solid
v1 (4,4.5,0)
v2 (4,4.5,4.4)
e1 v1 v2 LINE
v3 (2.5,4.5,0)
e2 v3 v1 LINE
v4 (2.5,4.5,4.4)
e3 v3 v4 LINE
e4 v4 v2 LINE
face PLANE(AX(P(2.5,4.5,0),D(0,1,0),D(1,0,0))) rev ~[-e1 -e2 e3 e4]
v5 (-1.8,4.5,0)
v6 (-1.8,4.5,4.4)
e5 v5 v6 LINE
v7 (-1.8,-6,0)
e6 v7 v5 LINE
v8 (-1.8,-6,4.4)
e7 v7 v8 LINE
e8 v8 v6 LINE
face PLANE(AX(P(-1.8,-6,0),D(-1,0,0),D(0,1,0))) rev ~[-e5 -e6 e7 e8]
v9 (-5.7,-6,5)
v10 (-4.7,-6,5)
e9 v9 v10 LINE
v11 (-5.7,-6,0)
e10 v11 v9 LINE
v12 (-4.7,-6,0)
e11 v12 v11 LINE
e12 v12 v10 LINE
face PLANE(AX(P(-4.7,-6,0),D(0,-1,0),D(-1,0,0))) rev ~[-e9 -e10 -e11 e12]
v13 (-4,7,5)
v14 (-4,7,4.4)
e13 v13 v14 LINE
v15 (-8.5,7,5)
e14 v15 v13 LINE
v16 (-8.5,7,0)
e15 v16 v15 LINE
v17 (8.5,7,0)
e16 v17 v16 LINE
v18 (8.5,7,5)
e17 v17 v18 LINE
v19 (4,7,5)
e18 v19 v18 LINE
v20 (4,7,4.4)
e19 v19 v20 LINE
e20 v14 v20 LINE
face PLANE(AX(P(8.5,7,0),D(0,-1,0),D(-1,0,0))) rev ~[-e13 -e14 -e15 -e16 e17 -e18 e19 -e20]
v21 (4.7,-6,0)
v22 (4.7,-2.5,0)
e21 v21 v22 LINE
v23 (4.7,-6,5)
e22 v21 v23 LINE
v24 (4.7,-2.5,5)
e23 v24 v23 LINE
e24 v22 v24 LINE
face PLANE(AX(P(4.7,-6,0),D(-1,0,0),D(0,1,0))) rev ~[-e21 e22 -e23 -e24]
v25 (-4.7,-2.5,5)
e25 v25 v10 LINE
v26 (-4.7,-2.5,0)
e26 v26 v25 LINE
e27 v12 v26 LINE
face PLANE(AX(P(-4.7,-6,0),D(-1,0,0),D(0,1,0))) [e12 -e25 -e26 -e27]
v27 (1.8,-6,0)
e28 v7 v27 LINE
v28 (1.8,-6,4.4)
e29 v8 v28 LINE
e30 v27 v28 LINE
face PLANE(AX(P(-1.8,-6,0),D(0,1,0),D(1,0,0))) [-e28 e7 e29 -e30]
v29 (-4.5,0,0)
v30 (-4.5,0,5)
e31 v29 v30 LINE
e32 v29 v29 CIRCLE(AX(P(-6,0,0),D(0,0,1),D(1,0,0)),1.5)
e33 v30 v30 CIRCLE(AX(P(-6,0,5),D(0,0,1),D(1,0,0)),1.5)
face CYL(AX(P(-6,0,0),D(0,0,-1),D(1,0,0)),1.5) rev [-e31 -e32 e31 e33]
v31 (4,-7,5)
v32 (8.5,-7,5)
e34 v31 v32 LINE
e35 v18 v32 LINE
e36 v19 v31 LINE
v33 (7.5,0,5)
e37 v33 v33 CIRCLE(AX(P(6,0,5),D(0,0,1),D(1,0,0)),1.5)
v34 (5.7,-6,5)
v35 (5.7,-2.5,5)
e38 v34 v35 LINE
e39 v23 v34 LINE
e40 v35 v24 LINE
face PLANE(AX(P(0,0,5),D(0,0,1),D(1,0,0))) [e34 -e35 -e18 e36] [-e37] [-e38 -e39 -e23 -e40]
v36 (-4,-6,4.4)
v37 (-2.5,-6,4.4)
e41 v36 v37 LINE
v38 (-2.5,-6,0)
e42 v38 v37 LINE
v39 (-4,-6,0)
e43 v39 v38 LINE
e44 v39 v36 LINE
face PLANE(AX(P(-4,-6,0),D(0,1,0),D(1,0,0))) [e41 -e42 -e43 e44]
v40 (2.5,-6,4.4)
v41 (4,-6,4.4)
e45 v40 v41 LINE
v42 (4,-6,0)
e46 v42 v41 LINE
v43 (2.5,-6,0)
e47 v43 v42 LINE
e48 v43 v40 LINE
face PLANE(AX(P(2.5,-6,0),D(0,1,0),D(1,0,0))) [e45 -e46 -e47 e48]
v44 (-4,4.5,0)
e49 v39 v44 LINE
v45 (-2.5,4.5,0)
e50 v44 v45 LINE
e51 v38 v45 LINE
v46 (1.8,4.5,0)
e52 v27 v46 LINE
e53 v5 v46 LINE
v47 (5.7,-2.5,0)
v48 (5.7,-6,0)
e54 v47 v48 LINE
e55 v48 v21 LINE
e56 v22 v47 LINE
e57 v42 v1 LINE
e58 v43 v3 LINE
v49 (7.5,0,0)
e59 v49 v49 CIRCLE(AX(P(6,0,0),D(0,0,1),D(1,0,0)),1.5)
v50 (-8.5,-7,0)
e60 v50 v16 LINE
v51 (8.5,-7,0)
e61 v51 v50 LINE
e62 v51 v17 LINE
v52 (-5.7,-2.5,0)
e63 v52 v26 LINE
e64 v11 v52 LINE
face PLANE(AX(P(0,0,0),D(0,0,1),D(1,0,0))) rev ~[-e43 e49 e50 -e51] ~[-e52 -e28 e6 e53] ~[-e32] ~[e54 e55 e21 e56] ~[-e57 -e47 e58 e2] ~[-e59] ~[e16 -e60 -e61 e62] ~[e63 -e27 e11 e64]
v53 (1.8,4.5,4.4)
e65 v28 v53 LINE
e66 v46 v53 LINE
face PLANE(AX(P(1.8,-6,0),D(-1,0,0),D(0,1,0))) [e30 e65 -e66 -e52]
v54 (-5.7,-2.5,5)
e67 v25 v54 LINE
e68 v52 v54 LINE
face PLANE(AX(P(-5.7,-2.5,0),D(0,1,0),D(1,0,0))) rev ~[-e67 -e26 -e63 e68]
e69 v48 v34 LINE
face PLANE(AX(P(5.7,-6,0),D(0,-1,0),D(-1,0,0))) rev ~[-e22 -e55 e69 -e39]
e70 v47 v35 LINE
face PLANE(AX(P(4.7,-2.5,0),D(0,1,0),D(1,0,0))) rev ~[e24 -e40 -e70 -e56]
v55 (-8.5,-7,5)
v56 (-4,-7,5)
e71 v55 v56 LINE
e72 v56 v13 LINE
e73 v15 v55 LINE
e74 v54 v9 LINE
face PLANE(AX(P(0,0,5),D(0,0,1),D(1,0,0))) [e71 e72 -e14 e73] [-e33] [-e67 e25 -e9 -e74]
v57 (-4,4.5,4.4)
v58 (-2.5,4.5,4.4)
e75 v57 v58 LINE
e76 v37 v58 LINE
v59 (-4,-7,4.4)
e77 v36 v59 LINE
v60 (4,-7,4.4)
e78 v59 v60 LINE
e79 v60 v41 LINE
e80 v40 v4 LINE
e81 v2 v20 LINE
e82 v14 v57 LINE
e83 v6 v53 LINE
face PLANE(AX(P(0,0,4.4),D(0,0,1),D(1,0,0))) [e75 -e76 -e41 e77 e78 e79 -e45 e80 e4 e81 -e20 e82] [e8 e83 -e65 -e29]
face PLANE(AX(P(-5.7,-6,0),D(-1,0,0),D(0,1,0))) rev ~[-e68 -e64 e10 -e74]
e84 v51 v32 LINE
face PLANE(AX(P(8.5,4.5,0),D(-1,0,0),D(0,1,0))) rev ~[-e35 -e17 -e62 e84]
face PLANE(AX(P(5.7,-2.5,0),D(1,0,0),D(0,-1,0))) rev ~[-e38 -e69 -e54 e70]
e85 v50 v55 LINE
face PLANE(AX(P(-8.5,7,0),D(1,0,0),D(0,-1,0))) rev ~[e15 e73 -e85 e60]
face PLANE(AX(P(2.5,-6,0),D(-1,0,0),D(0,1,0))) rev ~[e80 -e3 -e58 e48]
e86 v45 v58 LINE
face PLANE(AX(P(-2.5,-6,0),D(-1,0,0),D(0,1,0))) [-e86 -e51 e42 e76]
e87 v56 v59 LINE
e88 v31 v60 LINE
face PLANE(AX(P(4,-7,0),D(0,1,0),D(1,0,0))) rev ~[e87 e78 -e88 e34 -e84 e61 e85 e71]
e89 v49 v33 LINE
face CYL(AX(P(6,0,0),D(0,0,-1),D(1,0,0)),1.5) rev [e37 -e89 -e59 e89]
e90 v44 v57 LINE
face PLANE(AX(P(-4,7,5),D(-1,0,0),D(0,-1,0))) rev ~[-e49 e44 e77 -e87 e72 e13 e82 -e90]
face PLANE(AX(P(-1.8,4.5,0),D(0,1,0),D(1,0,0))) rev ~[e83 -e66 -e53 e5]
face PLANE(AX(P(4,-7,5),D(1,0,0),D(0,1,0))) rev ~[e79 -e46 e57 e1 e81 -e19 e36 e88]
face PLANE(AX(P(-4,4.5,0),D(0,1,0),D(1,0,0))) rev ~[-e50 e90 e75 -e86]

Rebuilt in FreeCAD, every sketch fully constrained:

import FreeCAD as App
import Part
import Sketcher

V = App.Vector

doc = App.newDocument("Part")
body = doc.addObject("PartDesign::Body", "Body")

sketch1 = doc.addObject("Sketcher::SketchObject", "Sketch")
body.addObject(sketch1)
sketch1.AttachmentSupport = (doc.XY_Plane, [""])
sketch1.MapMode = "FlatFace"
sketch1.addGeometry([
    Part.LineSegment(V(8.5, 7, 0), V(-8.5, 7, 0)),
    Part.LineSegment(V(-8.5, 7, 0), V(-8.5, -7, 0)),
    Part.LineSegment(V(-8.5, -7, 0), V(8.5, -7, 0)),
    Part.LineSegment(V(8.5, -7, 0), V(8.5, 7, 0)),
    Part.LineSegment(V(4, 4.5, 0), V(4, -6, 0)),
    Part.LineSegment(V(4, -6, 0), V(2.5, -6, 0)),
    Part.LineSegment(V(2.5, -6, 0), V(2.5, 4.5, 0)),
    Part.LineSegment(V(2.5, 4.5, 0), V(4, 4.5, 0)),
    Part.Circle(V(6, 0, 0), V(0, 0, 1), 1.5),
    Part.LineSegment(V(-1.8, 4.5, 0), V(1.8, 4.5, 0)),
    Part.LineSegment(V(1.8, 4.5, 0), V(1.8, -6, 0)),
    Part.LineSegment(V(1.8, -6, 0), V(-1.8, -6, 0)),
    Part.LineSegment(V(-1.8, -6, 0), V(-1.8, 4.5, 0)),
    Part.LineSegment(V(-4, 4.5, 0), V(-2.5, 4.5, 0)),
    Part.LineSegment(V(-2.5, 4.5, 0), V(-2.5, -6, 0)),
    Part.LineSegment(V(-2.5, -6, 0), V(-4, -6, 0)),
    Part.LineSegment(V(-4, -6, 0), V(-4, 4.5, 0)),
    Part.Circle(V(-6, 0, 0), V(0, 0, 1), 1.5),
], False)
sketch1.addConstraint([
    Sketcher.Constraint("Coincident", 0, 2, 1, 1),
    Sketcher.Constraint("Coincident", 1, 2, 2, 1),
    Sketcher.Constraint("Coincident", 2, 2, 3, 1),
    Sketcher.Constraint("Coincident", 3, 2, 0, 1),
    Sketcher.Constraint("Coincident", 4, 2, 5, 1),
    Sketcher.Constraint("Coincident", 5, 2, 6, 1),
    Sketcher.Constraint("Coincident", 6, 2, 7, 1),
    Sketcher.Constraint("Coincident", 7, 2, 4, 1),
    Sketcher.Constraint("Coincident", 9, 2, 10, 1),
    Sketcher.Constraint("Coincident", 10, 2, 11, 1),
    Sketcher.Constraint("Coincident", 11, 2, 12, 1),
    Sketcher.Constraint("Coincident", 12, 2, 9, 1),
    Sketcher.Constraint("Coincident", 13, 2, 14, 1),
    Sketcher.Constraint("Coincident", 14, 2, 15, 1),
    Sketcher.Constraint("Coincident", 15, 2, 16, 1),
    Sketcher.Constraint("Coincident", 16, 2, 13, 1),
    Sketcher.Constraint("Horizontal", 0),
    Sketcher.Constraint("Vertical", 1),
    Sketcher.Constraint("Horizontal", 2),
    Sketcher.Constraint("Vertical", 3),
    Sketcher.Constraint("Vertical", 4),
    Sketcher.Constraint("Horizontal", 5),
    Sketcher.Constraint("Vertical", 6),
    Sketcher.Constraint("Horizontal", 7),
    Sketcher.Constraint("Horizontal", 9),
    Sketcher.Constraint("Vertical", 10),
    Sketcher.Constraint("Horizontal", 11),
    Sketcher.Constraint("Vertical", 12),
    Sketcher.Constraint("Horizontal", 13),
    Sketcher.Constraint("Vertical", 14),
    Sketcher.Constraint("Horizontal", 15),
    Sketcher.Constraint("Vertical", 16),
    Sketcher.Constraint("Equal", 8, 17),
    Sketcher.Constraint("Symmetric", 8, 3, 17, 3, -1, 1),
    Sketcher.Constraint("Symmetric", 0, 2, 2, 2, -1, 1),
    Sketcher.Constraint("Symmetric", 6, 2, 13, 2, -2),
    Sketcher.Constraint("Symmetric", 4, 2, 15, 2, -2),
    Sketcher.Constraint("PointOnObject", 8, 3, -1),
    Sketcher.Constraint("Horizontal", 7, 2, 9, 2),
    Sketcher.Constraint("Horizontal", 5, 2, 10, 2),
    Sketcher.Constraint("Diameter", 8, 3.0),
    Sketcher.Constraint("DistanceX", 0, 2, 0, 1, 17.0),
    Sketcher.Constraint("DistanceY", 1, 2, 1, 1, 14.0),
    Sketcher.Constraint("DistanceX", 5, 2, 5, 1, 1.5),
    Sketcher.Constraint("DistanceY", 2, 2, 4, 2, 1.0),
    Sketcher.Constraint("DistanceX", -1, 1, 5, 2, 2.5),
    Sketcher.Constraint("DistanceY", -1, 1, 6, 2, 4.5),
    Sketcher.Constraint("DistanceX", 0, 2, 17, 3, 2.5),
    Sketcher.Constraint("DistanceX", 9, 2, 6, 2, 0.7),
    Sketcher.Constraint("DistanceX", 13, 2, 12, 2, 0.7),
])
pad1 = doc.addObject("PartDesign::Pad", "Pad")
body.addObject(pad1)
pad1.Profile = sketch1
pad1.Length = 5

sketch2 = doc.addObject("Sketcher::SketchObject", "Sketch001")
body.addObject(sketch2)
sketch2.AttachmentSupport = (doc.XY_Plane, [""])
sketch2.MapMode = "FlatFace"
sketch2.AttachmentOffset = App.Placement(V(0, 0, 5), App.Rotation())
sketch2.addGeometry([
    Part.LineSegment(V(4, -7, 0), V(4, 7, 0)),
    Part.LineSegment(V(4, 7, 0), V(-4, 7, 0)),
    Part.LineSegment(V(-4, 7, 0), V(-4, -7, 0)),
    Part.LineSegment(V(-4, -7, 0), V(4, -7, 0)),
], False)
sketch2.addConstraint([
    Sketcher.Constraint("Coincident", 0, 2, 1, 1),
    Sketcher.Constraint("Coincident", 1, 2, 2, 1),
    Sketcher.Constraint("Coincident", 2, 2, 3, 1),
    Sketcher.Constraint("Coincident", 3, 2, 0, 1),
    Sketcher.Constraint("Vertical", 0),
    Sketcher.Constraint("Horizontal", 1),
    Sketcher.Constraint("Vertical", 2),
    Sketcher.Constraint("Horizontal", 3),
    Sketcher.Constraint("Symmetric", 0, 2, 2, 2, -1, 1),
    Sketcher.Constraint("DistanceX", 1, 2, 1, 1, 8.0),
    Sketcher.Constraint("DistanceY", 0, 1, 0, 2, 14.0),
])
pocket1 = doc.addObject("PartDesign::Pocket", "Pocket")
body.addObject(pocket1)
pocket1.Profile = sketch2
pocket1.Length = 0.6

sketch3 = doc.addObject("Sketcher::SketchObject", "Sketch002")
body.addObject(sketch3)
sketch3.AttachmentSupport = (doc.XY_Plane, [""])
sketch3.MapMode = "FlatFace"
sketch3.addGeometry([
    Part.LineSegment(V(-4.7, -2.5, 0), V(-4.7, -6, 0)),
    Part.LineSegment(V(-4.7, -6, 0), V(-5.7, -6, 0)),
    Part.LineSegment(V(-5.7, -6, 0), V(-5.7, -2.5, 0)),
    Part.LineSegment(V(-5.7, -2.5, 0), V(-4.7, -2.5, 0)),
    Part.LineSegment(V(5.7, -6, 0), V(4.7, -6, 0)),
    Part.LineSegment(V(4.7, -6, 0), V(4.7, -2.5, 0)),
    Part.LineSegment(V(4.7, -2.5, 0), V(5.7, -2.5, 0)),
    Part.LineSegment(V(5.7, -2.5, 0), V(5.7, -6, 0)),
], False)
sketch3.addConstraint([
    Sketcher.Constraint("Coincident", 0, 2, 1, 1),
    Sketcher.Constraint("Coincident", 1, 2, 2, 1),
    Sketcher.Constraint("Coincident", 2, 2, 3, 1),
    Sketcher.Constraint("Coincident", 3, 2, 0, 1),
    Sketcher.Constraint("Coincident", 4, 2, 5, 1),
    Sketcher.Constraint("Coincident", 5, 2, 6, 1),
    Sketcher.Constraint("Coincident", 6, 2, 7, 1),
    Sketcher.Constraint("Coincident", 7, 2, 4, 1),
    Sketcher.Constraint("Vertical", 0),
    Sketcher.Constraint("Horizontal", 1),
    Sketcher.Constraint("Vertical", 2),
    Sketcher.Constraint("Horizontal", 3),
    Sketcher.Constraint("Horizontal", 4),
    Sketcher.Constraint("Vertical", 5),
    Sketcher.Constraint("Horizontal", 6),
    Sketcher.Constraint("Vertical", 7),
    Sketcher.Constraint("Symmetric", 0, 2, 4, 2, -2),
    Sketcher.Constraint("Symmetric", 2, 2, 6, 2, -2),
    Sketcher.Constraint("DistanceX", 1, 2, 1, 1, 1.0),
    Sketcher.Constraint("DistanceY", 0, 2, 0, 1, 3.5),
    Sketcher.Constraint("DistanceY", 0, 2, -1, 1, 6.0),
    Sketcher.Constraint("DistanceX", 0, 2, -1, 1, 4.7),
])
pocket2 = doc.addObject("PartDesign::Pocket", "Pocket001")
body.addObject(pocket2)
pocket2.Profile = sketch3
pocket2.Length = 10
pocket2.Reversed = True

doc.recompute()
